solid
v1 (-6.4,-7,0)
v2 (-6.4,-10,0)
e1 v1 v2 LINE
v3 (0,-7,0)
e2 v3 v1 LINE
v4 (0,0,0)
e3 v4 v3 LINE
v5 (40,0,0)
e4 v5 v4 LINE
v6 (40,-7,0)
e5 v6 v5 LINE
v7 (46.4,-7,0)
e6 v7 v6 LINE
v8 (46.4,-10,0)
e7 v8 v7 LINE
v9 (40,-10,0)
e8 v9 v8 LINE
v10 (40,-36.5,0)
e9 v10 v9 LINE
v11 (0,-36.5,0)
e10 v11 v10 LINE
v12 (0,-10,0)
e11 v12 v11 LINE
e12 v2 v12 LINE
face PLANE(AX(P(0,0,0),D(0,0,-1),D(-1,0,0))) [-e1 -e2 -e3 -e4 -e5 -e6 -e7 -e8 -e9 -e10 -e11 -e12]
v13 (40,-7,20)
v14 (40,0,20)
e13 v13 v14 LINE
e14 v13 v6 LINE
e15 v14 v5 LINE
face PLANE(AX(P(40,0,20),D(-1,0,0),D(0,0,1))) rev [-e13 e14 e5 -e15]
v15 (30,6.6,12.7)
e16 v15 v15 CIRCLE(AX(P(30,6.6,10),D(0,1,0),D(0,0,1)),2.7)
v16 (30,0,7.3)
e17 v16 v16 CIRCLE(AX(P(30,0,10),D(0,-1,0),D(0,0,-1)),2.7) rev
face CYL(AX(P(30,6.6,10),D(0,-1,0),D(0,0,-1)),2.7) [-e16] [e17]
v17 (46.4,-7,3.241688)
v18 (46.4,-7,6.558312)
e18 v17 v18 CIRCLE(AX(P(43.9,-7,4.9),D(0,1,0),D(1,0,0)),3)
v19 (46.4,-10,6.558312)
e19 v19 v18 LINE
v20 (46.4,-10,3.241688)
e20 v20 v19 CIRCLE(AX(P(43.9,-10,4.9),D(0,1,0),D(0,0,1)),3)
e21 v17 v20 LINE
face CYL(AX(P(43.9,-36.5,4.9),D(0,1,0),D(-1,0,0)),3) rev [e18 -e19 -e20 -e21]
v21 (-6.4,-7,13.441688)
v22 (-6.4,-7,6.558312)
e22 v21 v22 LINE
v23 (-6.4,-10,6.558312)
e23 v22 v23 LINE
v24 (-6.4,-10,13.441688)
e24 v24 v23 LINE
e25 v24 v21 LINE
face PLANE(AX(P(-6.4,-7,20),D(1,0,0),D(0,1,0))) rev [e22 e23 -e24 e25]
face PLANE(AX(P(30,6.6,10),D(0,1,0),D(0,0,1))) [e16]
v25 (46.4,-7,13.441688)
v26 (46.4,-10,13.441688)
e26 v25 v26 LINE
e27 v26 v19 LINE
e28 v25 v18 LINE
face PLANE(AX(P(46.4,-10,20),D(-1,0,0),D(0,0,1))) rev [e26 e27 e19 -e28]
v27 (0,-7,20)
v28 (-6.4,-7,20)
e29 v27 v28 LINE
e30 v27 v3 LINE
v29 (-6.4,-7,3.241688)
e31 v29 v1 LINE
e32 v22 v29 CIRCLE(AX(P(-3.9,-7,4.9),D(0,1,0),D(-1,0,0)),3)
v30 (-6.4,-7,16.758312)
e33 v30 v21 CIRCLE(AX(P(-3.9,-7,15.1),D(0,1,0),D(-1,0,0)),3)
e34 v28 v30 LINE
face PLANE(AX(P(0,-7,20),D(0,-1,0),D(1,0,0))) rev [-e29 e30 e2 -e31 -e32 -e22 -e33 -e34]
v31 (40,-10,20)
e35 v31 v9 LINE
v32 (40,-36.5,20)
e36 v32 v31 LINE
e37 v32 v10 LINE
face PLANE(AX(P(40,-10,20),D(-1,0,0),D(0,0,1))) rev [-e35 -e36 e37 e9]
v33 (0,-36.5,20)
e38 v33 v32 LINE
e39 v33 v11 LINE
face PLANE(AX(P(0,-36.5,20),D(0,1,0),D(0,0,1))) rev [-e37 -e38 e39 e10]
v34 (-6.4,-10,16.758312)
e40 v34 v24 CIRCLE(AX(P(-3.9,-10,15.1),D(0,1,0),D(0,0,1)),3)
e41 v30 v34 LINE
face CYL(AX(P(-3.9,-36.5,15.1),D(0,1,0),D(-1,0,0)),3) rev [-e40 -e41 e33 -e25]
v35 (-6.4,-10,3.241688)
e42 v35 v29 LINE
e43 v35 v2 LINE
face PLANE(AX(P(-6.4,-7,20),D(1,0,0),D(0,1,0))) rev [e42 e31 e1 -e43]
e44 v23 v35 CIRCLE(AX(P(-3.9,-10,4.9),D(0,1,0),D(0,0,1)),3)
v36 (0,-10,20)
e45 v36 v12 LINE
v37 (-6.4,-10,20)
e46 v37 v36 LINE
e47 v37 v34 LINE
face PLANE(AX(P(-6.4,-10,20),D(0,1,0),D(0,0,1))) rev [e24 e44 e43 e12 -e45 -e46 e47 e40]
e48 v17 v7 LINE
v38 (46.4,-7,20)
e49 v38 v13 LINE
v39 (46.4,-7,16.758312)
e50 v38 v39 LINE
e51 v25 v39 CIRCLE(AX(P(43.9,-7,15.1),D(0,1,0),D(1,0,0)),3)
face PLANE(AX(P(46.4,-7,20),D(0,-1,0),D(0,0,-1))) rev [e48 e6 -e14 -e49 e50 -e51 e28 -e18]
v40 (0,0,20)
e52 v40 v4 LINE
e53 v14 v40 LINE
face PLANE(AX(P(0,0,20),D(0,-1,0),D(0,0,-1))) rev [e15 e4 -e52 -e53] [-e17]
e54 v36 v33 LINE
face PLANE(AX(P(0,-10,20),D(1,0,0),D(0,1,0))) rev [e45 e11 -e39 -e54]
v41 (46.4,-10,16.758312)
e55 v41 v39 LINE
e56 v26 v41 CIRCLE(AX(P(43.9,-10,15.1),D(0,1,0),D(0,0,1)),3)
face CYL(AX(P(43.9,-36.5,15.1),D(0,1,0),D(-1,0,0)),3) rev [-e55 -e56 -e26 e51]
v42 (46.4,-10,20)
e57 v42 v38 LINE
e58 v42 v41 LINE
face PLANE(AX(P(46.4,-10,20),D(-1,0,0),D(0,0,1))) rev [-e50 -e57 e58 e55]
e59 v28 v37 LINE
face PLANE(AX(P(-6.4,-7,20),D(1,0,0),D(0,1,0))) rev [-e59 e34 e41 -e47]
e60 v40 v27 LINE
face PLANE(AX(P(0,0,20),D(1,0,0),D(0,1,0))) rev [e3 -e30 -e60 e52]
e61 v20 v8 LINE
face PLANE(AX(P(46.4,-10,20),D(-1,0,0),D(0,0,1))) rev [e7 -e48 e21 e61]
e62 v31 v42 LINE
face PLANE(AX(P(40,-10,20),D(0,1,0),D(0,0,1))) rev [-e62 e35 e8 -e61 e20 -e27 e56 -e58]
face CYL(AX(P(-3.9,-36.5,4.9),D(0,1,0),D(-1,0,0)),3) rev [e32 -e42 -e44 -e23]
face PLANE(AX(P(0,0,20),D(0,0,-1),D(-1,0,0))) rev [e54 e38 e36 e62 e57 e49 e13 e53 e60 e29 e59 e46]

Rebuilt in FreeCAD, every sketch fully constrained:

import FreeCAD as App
import Part
import Sketcher
from FreeCAD import Vector
Q = App.Units.Quantity

doc = App.newDocument("Part")
params = doc.addObject("Spreadsheet::Sheet", "Params")
for row, (alias, value) in enumerate([
    ("sketch1_width", "40 mm"),
    ("sketch1_height", "3 mm"),
    ("sketch1_height2", "7 mm"),
    ("sketch1_width2", "6.4 mm"),
    ("sketch1_height3", "26.5 mm"),
    ("pad1_length", "20 mm"),
    ("sketch2_diameter", "6 mm"),
    ("sketch3_diameter", "5.4 mm"),
    ("pad2_length", "6.6 mm"),
], start=1):
    params.set(f"A{row}", alias)
    params.set(f"B{row}", "=" + value)
    params.setAlias(f"B{row}", alias)

body = doc.addObject("PartDesign::Body", "Body")

# Sketch on XY plane
sketch1 = body.newObject("Sketcher::SketchObject", "Sketch")
sketch1.AttachmentSupport = (doc.getObject("XY_Plane"), [""])
sketch1.MapMode = "FlatFace"
sketch1.addGeometry([
    Part.LineSegment(Vector(0, -7, 0), Vector(-6.4, -7, 0)),  # 0
    Part.LineSegment(Vector(-6.4, -7, 0), Vector(-6.4, -10, 0)),  # 1
    Part.LineSegment(Vector(-6.4, -10, 0), Vector(0, -10, 0)),  # 2
    Part.LineSegment(Vector(0, -10, 0), Vector(0, -36.5, 0)),  # 3
    Part.LineSegment(Vector(0, -36.5, 0), Vector(40, -36.5, 0)),  # 4
    Part.LineSegment(Vector(40, -36.5, 0), Vector(40, -10, 0)),  # 5
    Part.LineSegment(Vector(40, -10, 0), Vector(46.4, -10, 0)),  # 6
    Part.LineSegment(Vector(46.4, -10, 0), Vector(46.4, -7, 0)),  # 7
    Part.LineSegment(Vector(46.4, -7, 0), Vector(40, -7, 0)),  # 8
    Part.LineSegment(Vector(40, -7, 0), Vector(40, 0, 0)),  # 9
    Part.LineSegment(Vector(40, 0, 0), Vector(0, 0, 0)),  # 10
    Part.LineSegment(Vector(0, 0, 0), Vector(0, -7, 0)),  # 11
], False)
sketch1.addConstraint([
    Sketcher.Constraint("Coincident", 0, 2, 1, 1),
    Sketcher.Constraint("Coincident", 1, 2, 2, 1),
    Sketcher.Constraint("Coincident", 2, 2, 3, 1),
    Sketcher.Constraint("Coincident", 3, 2, 4, 1),
    Sketcher.Constraint("Coincident", 4, 2, 5, 1),
    Sketcher.Constraint("Coincident", 5, 2, 6, 1),
    Sketcher.Constraint("Coincident", 6, 2, 7, 1),
    Sketcher.Constraint("Coincident", 7, 2, 8, 1),
    Sketcher.Constraint("Coincident", 8, 2, 9, 1),
    Sketcher.Constraint("Coincident", 9, 2, 10, 1),
    Sketcher.Constraint("Coincident", 10, 2, 11, 1),
    Sketcher.Constraint("Coincident", 11, 2, 0, 1),
    Sketcher.Constraint("Horizontal", 0),
    Sketcher.Constraint("Vertical", 1),
    Sketcher.Constraint("Horizontal", 2),
    Sketcher.Constraint("Vertical", 3),
    Sketcher.Constraint("Horizontal", 4),
    Sketcher.Constraint("Vertical", 5),
    Sketcher.Constraint("Horizontal", 6),
    Sketcher.Constraint("Vertical", 7),
    Sketcher.Constraint("Horizontal", 8),
    Sketcher.Constraint("Vertical", 9),
    Sketcher.Constraint("Horizontal", 10),
    Sketcher.Constraint("Vertical", 11),
    Sketcher.Constraint("Coincident", 10, 2, -1, 1),
    Sketcher.Constraint("PointOnObject", 2, 2, -2),
    Sketcher.Constraint("Horizontal", 2, 2, 5, 2),
    Sketcher.Constraint("Horizontal", 0, 2, 7, 2),
    Sketcher.Constraint("Vertical", 5, 2, 8, 2),
    Sketcher.Constraint("Equal", 2, 6),
    Sketcher.Constraint("DistanceX", 4, 1, 4, 2, Q("40 mm")),
    Sketcher.Constraint("DistanceY", 1, 2, 1, 1, Q("3 mm")),
    Sketcher.Constraint("DistanceY", 9, 1, 9, 2, Q("7 mm")),
    Sketcher.Constraint("DistanceX", 0, 2, 0, 1, Q("6.4 mm")),
    Sketcher.Constraint("DistanceY", 3, 2, 3, 1, Q("26.5 mm")),
])
sketch1.setExpression("Constraints[30]", "Params.sketch1_width")
sketch1.setExpression("Constraints[31]", "Params.sketch1_height")
sketch1.setExpression("Constraints[32]", "Params.sketch1_height2")
sketch1.setExpression("Constraints[33]", "Params.sketch1_width2")
sketch1.setExpression("Constraints[34]", "Params.sketch1_height3")
pad1 = body.newObject("PartDesign::Pad", "Pad")
pad1.Profile = sketch1
pad1.setExpression("Length", "Params.pad1_length")

# Sketch on XZ plane
sketch2 = body.newObject("Sketcher::SketchObject", "Sketch001")
sketch2.AttachmentSupport = (doc.getObject("XZ_Plane"), [""])
sketch2.MapMode = "FlatFace"
sketch2.AttachmentOffset = App.Placement(Vector(0, 0, 7), App.Rotation())
sketch2.addGeometry([
    Part.Circle(Vector(-3.9, 4.9, 0), Vector(0, 0, 1), 3),
    Part.Circle(Vector(-3.9, 15.1, 0), Vector(0, 0, 1), 3),
    Part.Circle(Vector(43.9, 15.1, 0), Vector(0, 0, 1), 3),
    Part.Circle(Vector(43.9, 4.9, 0), Vector(0, 0, 1), 3),
], False)
sketch2.addConstraint([
    Sketcher.Constraint("Equal", 0, 1),
    Sketcher.Constraint("Equal", 1, 2),
    Sketcher.Constraint("Equal", 2, 3),
    Sketcher.Constraint("Horizontal", 1, 3, 2, 3),
    Sketcher.Constraint("Horizontal", 0, 3, 3, 3),
    Sketcher.Constraint("Vertical", 0, 3, 1, 3),
    Sketcher.Constraint("Vertical", 2, 3, 3, 3),
    Sketcher.Constraint("Diameter", 0, Q("6 mm")),
    Sketcher.Constraint("DistanceX", 0, 3, -1, 1, Q("3.9 mm")),
    Sketcher.Constraint("DistanceY", -1, 1, 0, 3, Q("4.9 mm")),
    Sketcher.Constraint("DistanceY", -1, 1, 1, 3, Q("15.1 mm")),
    Sketcher.Constraint("DistanceX", -1, 1, 2, 3, Q("43.9 mm")),
])
sketch2.setExpression("Constraints[7]", "Params.sketch2_diameter")
pocket1 = body.newObject("PartDesign::Pocket", "Pocket")
pocket1.Profile = sketch2
pocket1.Type = "ThroughAll"
pocket1.Reversed = True

# Sketch on XZ plane
sketch3 = body.newObject("Sketcher::SketchObject", "Sketch002")
sketch3.AttachmentSupport = (doc.getObject("XZ_Plane"), [""])
sketch3.MapMode = "FlatFace"
sketch3.addGeometry(Part.Circle(Vector(30, 10, 0), Vector(0, 0, 1), 2.7), False)
sketch3.addConstraint([
    Sketcher.Constraint("Diameter", 0, Q("5.4 mm")),
    Sketcher.Constraint("DistanceX", -1, 1, 0, 3, Q("30 mm")),
    Sketcher.Constraint("DistanceY", -1, 1, 0, 3, Q("10 mm")),
])
sketch3.setExpression("Constraints[0]", "Params.sketch3_diameter")
pad2 = body.newObject("PartDesign::Pad", "Pad001")
pad2.Profile = sketch3
pad2.setExpression("Length", "Params.pad2_length")
pad2.Reversed = True

doc.recompute()
